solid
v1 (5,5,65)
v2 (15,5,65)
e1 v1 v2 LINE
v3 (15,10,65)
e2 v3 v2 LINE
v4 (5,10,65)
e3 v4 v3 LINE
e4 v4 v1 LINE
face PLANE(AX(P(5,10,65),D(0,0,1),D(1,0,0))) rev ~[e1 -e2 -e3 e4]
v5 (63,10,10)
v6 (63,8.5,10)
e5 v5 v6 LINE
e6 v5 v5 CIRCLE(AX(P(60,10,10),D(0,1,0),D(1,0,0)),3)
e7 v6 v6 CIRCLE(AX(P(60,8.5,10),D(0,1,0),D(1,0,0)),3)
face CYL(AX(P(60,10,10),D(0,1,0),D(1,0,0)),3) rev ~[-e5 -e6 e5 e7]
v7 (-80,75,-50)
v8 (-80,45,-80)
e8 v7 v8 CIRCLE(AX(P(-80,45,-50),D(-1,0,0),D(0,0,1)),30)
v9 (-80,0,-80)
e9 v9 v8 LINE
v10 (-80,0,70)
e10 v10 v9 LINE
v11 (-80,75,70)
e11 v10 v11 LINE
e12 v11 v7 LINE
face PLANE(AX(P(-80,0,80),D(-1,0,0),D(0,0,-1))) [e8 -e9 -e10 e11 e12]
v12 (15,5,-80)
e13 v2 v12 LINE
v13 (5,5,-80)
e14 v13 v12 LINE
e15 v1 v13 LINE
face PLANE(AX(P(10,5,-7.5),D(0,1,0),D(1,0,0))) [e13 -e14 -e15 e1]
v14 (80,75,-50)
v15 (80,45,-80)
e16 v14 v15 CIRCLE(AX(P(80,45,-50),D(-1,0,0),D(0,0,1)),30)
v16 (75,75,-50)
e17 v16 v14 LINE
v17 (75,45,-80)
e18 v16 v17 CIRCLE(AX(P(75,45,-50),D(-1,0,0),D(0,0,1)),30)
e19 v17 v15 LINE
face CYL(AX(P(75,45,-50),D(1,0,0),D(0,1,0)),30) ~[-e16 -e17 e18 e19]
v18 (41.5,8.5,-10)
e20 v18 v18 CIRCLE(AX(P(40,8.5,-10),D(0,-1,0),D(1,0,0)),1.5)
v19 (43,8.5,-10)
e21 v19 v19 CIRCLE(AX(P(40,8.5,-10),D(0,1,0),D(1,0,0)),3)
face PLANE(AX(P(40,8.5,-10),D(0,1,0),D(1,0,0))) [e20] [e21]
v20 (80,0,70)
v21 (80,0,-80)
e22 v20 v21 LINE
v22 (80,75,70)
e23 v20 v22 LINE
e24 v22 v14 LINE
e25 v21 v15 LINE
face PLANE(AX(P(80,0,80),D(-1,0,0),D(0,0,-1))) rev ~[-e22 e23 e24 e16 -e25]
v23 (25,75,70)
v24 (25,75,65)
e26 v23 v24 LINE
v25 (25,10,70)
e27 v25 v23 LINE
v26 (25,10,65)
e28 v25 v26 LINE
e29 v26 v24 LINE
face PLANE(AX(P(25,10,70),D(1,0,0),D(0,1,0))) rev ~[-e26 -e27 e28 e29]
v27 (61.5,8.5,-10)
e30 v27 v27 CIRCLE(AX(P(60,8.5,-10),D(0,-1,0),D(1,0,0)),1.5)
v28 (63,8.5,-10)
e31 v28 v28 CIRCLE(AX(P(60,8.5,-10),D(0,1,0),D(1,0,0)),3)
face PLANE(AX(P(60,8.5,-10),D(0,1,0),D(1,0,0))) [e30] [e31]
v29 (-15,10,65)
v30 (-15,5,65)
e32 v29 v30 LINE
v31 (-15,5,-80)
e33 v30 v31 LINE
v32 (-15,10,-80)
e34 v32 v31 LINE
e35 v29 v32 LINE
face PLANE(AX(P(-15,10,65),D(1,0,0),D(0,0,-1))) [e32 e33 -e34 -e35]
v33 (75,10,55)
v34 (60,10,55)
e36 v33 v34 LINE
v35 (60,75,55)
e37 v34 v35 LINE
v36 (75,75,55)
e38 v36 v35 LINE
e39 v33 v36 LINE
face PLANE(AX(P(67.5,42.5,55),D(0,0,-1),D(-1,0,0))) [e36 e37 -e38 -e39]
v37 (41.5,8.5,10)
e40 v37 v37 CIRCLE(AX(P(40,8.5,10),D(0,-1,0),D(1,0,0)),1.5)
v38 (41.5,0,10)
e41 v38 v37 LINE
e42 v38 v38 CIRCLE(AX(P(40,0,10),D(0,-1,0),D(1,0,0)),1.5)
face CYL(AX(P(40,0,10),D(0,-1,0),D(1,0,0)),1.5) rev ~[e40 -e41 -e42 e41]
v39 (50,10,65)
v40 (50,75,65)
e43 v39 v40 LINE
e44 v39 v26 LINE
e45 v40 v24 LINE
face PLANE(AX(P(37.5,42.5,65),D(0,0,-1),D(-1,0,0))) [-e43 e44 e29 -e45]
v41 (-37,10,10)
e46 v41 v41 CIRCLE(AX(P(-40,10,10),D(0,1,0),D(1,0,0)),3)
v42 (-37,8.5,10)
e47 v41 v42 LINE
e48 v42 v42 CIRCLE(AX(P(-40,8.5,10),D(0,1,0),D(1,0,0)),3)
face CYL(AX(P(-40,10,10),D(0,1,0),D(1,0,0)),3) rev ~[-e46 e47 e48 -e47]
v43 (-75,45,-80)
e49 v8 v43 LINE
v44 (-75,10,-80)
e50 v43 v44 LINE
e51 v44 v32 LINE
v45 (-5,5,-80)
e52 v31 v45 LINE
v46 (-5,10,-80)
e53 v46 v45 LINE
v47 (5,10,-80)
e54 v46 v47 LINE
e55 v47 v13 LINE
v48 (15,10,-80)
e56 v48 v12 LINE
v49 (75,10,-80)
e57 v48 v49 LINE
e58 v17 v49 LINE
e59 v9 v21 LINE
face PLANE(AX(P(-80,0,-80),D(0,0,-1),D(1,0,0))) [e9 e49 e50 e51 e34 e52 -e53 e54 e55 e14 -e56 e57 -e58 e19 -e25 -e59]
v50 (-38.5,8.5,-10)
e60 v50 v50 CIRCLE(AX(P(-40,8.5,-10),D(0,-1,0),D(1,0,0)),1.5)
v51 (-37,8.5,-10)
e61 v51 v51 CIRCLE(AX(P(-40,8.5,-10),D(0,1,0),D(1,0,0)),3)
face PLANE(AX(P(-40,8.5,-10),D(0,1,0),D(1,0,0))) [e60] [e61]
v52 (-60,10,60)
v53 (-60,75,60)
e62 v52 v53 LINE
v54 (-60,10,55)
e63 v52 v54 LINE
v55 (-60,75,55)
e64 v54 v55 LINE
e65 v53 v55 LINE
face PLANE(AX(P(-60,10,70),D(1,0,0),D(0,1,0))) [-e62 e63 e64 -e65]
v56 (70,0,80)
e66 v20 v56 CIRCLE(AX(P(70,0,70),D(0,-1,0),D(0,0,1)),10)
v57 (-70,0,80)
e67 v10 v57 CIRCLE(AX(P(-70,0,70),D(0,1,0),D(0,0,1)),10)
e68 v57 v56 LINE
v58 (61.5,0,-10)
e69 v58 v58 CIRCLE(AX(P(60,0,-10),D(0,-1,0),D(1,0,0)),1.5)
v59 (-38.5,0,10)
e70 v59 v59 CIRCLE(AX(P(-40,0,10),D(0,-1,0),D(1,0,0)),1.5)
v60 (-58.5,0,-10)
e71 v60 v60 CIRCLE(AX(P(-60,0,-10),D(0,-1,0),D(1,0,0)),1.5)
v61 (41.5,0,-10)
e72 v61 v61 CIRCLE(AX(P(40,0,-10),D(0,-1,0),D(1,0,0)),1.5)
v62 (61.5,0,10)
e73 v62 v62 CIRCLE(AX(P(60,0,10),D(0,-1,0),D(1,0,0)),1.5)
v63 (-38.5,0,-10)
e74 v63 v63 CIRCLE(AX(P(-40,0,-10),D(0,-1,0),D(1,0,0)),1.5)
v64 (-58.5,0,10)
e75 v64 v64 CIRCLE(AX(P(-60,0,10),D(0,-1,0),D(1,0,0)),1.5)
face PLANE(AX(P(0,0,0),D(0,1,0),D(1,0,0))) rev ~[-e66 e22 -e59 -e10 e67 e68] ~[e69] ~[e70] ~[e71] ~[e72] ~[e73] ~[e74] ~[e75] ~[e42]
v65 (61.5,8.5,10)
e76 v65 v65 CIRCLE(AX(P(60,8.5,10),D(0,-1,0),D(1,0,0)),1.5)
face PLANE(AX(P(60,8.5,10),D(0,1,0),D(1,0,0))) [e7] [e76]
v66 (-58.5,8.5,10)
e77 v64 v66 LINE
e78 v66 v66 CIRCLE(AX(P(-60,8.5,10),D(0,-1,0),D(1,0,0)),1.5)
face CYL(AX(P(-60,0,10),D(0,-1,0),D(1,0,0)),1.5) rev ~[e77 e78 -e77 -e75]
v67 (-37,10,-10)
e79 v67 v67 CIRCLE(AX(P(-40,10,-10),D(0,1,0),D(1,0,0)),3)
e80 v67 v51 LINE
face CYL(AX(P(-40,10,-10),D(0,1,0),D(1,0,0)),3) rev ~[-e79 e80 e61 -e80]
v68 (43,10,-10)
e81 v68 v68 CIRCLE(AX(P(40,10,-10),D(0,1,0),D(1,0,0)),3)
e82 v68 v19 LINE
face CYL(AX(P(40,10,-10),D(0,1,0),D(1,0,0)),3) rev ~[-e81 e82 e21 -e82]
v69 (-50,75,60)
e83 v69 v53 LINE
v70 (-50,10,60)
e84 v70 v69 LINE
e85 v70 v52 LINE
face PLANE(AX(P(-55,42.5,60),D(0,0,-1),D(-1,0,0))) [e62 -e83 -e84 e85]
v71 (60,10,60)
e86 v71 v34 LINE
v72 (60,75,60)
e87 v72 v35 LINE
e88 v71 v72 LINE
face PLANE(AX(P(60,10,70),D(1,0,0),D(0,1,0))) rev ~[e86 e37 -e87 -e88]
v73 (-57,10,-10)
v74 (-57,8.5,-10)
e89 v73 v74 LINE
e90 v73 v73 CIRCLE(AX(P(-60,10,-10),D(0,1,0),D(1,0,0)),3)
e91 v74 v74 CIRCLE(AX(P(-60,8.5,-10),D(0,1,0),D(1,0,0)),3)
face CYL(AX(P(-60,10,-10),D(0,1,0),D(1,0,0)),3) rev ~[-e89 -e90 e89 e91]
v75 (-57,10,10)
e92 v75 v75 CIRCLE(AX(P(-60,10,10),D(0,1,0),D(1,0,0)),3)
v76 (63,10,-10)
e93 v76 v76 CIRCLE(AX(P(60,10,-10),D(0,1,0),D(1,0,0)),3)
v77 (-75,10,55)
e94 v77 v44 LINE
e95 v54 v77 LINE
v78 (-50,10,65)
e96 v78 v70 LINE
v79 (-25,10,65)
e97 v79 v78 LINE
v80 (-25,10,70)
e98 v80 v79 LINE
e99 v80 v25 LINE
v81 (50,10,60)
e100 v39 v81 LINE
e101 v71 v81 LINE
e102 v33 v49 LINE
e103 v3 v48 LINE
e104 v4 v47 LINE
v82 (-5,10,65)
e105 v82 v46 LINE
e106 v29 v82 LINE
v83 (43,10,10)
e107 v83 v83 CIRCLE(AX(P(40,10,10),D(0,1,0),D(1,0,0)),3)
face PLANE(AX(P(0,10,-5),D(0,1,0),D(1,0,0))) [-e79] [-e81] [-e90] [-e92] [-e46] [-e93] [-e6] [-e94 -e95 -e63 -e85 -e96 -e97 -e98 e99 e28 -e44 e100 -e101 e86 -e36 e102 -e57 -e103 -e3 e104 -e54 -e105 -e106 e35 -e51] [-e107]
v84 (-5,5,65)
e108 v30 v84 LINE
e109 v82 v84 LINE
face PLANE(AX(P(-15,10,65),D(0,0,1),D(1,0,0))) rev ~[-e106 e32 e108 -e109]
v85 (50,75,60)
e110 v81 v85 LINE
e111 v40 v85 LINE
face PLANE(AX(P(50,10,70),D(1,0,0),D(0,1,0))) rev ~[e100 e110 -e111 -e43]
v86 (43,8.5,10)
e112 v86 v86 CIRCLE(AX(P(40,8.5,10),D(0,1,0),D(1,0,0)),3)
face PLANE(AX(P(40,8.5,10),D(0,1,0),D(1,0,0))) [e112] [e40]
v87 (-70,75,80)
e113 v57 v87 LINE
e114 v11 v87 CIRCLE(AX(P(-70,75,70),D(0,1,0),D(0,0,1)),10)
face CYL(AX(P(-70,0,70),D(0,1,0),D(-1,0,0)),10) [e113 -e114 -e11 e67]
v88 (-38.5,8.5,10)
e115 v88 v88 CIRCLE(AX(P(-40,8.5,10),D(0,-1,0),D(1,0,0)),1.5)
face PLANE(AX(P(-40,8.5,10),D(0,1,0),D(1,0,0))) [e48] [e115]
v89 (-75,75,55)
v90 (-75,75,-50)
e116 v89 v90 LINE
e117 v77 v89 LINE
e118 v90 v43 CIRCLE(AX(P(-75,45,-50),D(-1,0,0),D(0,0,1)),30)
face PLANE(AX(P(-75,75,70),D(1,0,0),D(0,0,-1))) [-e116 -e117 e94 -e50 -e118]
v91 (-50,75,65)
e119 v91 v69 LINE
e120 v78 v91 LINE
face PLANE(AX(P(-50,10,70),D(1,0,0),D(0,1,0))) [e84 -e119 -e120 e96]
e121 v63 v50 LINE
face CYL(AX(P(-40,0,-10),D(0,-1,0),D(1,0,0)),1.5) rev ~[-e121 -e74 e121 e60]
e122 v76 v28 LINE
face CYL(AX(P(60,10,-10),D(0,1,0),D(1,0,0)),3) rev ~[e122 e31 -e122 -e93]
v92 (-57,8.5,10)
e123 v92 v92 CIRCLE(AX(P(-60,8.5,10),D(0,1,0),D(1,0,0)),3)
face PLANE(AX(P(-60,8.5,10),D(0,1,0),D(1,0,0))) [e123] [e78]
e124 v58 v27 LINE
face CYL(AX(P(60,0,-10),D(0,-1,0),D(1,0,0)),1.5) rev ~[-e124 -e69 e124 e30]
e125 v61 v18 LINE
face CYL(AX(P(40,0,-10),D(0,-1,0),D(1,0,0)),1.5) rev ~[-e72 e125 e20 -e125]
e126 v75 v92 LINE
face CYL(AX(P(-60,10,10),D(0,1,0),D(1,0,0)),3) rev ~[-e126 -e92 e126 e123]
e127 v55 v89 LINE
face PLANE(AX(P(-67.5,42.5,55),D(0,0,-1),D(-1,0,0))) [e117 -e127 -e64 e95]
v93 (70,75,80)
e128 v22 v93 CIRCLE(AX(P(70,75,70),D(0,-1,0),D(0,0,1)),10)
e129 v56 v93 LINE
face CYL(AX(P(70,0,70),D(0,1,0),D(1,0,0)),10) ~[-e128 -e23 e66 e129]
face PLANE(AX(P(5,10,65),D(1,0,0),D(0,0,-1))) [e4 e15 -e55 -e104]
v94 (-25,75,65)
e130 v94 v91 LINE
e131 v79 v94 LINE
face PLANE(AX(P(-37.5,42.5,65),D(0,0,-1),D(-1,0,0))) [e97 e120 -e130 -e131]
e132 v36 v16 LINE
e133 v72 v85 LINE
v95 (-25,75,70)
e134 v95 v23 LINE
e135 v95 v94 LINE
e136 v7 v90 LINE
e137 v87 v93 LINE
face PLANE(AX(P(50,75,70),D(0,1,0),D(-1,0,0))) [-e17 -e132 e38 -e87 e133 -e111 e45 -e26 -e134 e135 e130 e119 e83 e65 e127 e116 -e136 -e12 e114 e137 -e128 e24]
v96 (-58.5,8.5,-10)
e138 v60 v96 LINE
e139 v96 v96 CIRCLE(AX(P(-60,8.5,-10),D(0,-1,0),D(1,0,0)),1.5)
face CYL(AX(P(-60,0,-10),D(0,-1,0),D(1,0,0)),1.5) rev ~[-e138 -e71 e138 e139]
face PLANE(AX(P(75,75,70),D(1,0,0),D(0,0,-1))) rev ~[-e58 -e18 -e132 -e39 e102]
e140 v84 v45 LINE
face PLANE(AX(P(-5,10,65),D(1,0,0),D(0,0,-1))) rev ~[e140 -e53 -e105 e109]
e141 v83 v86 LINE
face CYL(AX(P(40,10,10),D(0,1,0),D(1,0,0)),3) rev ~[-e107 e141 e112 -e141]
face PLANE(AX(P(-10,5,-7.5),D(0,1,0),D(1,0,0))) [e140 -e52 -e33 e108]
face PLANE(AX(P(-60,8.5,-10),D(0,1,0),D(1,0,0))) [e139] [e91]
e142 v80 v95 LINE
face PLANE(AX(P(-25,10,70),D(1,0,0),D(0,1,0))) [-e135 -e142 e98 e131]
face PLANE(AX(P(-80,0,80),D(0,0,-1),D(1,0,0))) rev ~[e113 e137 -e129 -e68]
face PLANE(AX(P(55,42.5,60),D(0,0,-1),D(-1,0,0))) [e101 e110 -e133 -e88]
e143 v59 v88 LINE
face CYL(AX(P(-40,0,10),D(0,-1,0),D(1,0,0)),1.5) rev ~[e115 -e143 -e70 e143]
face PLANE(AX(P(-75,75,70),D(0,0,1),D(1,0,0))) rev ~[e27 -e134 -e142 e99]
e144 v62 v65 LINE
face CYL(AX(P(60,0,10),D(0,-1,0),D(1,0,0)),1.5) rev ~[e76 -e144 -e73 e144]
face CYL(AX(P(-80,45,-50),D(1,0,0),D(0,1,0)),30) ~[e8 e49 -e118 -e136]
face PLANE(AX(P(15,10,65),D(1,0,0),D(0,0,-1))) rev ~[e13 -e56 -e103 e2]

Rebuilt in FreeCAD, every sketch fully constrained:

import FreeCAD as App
import Part
import Sketcher


def edges_at(feature, points):
    """Names of the edges that pass closest to the given points."""
    edges = feature.Shape.Edges
    near = lambda p: min(range(len(edges)), key=lambda i: edges[i].distToShape(Part.Vertex(*p))[0])
    return sorted({f"Edge{near(p) + 1}" for p in points})


def add_polygon(sketch, points):
    """Adds a closed chain of lines whose ends are joined by coincident constraints."""
    first, n = sketch.GeometryCount, len(points)
    for a, b in zip(points, points[1:] + points[:1]):
        sketch.addGeometry(Part.LineSegment(App.Vector(*a, 0), App.Vector(*b, 0)), False)
    for i in range(n):
        sketch.addConstraint(Sketcher.Constraint("Coincident", first + i, 2, first + (i + 1) % n, 1))

doc = App.newDocument("Part")
body = doc.addObject("PartDesign::Body", "Body")

sketch1 = body.newObject("Sketcher::SketchObject", "Sketch")
sketch1.AttachmentSupport = (doc.getObject("XZ_Plane"), [""])
sketch1.MapMode = "FlatFace"
add_polygon(sketch1, [(-80, -80), (-80, 80), (80, 80), (80, -80)])
sketch1.addConstraint([
    Sketcher.Constraint("Vertical", 0),
    Sketcher.Constraint("Horizontal", 1),
    Sketcher.Constraint("Vertical", 2),
    Sketcher.Constraint("Horizontal", 3),
    Sketcher.Constraint("Symmetric", 0, 2, 2, 2, -1, 1),
    Sketcher.Constraint("Equal", 3, 0),
    Sketcher.Constraint("DistanceX", 1, 1, 1, 2, 160.0),
])
pad1 = body.newObject("PartDesign::Pad", "Pad")
pad1.Profile = sketch1
pad1.Length = 75
pad1.Reversed = True

sketch2 = body.newObject("Sketcher::SketchObject", "Sketch001")
sketch2.AttachmentSupport = (doc.getObject("XZ_Plane"), [""])
sketch2.MapMode = "FlatFace"
sketch2.AttachmentOffset = App.Placement(App.Vector(0, 0, -75), App.Rotation())
add_polygon(sketch2, [(-75, -80), (-75, 70), (75, 70), (75, -80)])
sketch2.addConstraint([
    Sketcher.Constraint("Vertical", 0),
    Sketcher.Constraint("Horizontal", 1),
    Sketcher.Constraint("Vertical", 2),
    Sketcher.Constraint("Horizontal", 3),
    Sketcher.Constraint("Equal", 3, 0),
    Sketcher.Constraint("DistanceX", 1, 1, 1, 2, 150.0),
    Sketcher.Constraint("DistanceX", 0, 2, -1, 1, 75.0),
    Sketcher.Constraint("DistanceY", -1, 1, 0, 2, 70.0),
])
pocket1 = body.newObject("PartDesign::Pocket", "Pocket")
pocket1.Profile = sketch2
pocket1.Length = 65
pocket1.Reversed = True

sketch3 = body.newObject("Sketcher::SketchObject", "Sketch002")
sketch3.AttachmentSupport = (doc.getObject("XY_Plane"), [""])
sketch3.MapMode = "FlatFace"
sketch3.AttachmentOffset = App.Placement(App.Vector(0, 0, 70), App.Rotation())
add_polygon(sketch3, [(75, 75), (75, 10), (60, 10), (60, 75)])
add_polygon(sketch3, [(-60, 75), (-60, 10), (-75, 10), (-75, 75)])
sketch3.addConstraint([
    Sketcher.Constraint("Vertical", 0),
    Sketcher.Constraint("Horizontal", 1),
    Sketcher.Constraint("Vertical", 2),
    Sketcher.Constraint("Horizontal", 3),
    Sketcher.Constraint("Vertical", 4),
    Sketcher.Constraint("Horizontal", 5),
    Sketcher.Constraint("Vertical", 6),
    Sketcher.Constraint("Horizontal", 7),
    Sketcher.Constraint("Symmetric", 1, 2, 4, 2, -2),
    Sketcher.Constraint("Symmetric", 3, 2, 6, 2, -2),
    Sketcher.Constraint("DistanceX", 1, 2, 1, 1, 15.0),
    Sketcher.Constraint("DistanceY", 0, 2, 0, 1, 65.0),
    Sketcher.Constraint("DistanceX", -1, 1, 0, 2, 75.0),
    Sketcher.Constraint("DistanceY", -1, 1, 0, 2, 10.0),
])
pad2 = body.newObject("PartDesign::Pad", "Pad001")
pad2.Profile = sketch3
pad2.Length = 15
pad2.Reversed = True

sketch4 = body.newObject("Sketcher::SketchObject", "Sketch003")
sketch4.AttachmentSupport = (doc.getObject("XY_Plane"), [""])
sketch4.MapMode = "FlatFace"
sketch4.AttachmentOffset = App.Placement(App.Vector(0, 0, 70), App.Rotation())
add_polygon(sketch4, [(60, 75), (60, 10), (50, 10), (50, 75)])
add_polygon(sketch4, [(-50, 75), (-50, 10), (-60, 10), (-60, 75)])
sketch4.addConstraint([
    Sketcher.Constraint("Vertical", 0),
    Sketcher.Constraint("Horizontal", 1),
    Sketcher.Constraint("Vertical", 2),
    Sketcher.Constraint("Horizontal", 3),
    Sketcher.Constraint("Vertical", 4),
    Sketcher.Constraint("Horizontal", 5),
    Sketcher.Constraint("Vertical", 6),
    Sketcher.Constraint("Horizontal", 7),
    Sketcher.Constraint("Symmetric", 1, 2, 4, 2, -2),
    Sketcher.Constraint("Symmetric", 3, 2, 6, 2, -2),
    Sketcher.Constraint("DistanceX", 1, 2, 1, 1, 10.0),
    Sketcher.Constraint("DistanceY", 0, 2, 0, 1, 65.0),
    Sketcher.Constraint("DistanceX", -1, 1, 0, 2, 60.0),
    Sketcher.Constraint("DistanceY", -1, 1, 0, 2, 10.0),
])
pad3 = body.newObject("PartDesign::Pad", "Pad002")
pad3.Profile = sketch4
pad3.Length = 10
pad3.Reversed = True
doc.recompute()

fillet = body.newObject("PartDesign::Fillet", "Fillet")
fillet.Base = (pad3, edges_at(pad3, [(80, 37.5, 80), (-80, 37.5, 80)]))
fillet.Radius = 10

sketch5 = body.newObject("Sketcher::SketchObject", "Sketch004")
sketch5.AttachmentSupport = (doc.getObject("XY_Plane"), [""])
sketch5.MapMode = "FlatFace"
sketch5.AttachmentOffset = App.Placement(App.Vector(0, 0, 70), App.Rotation())
add_polygon(sketch5, [(50, 75), (50, 10), (25, 10), (25, 75)])
add_polygon(sketch5, [(-25, 75), (-25, 10), (-50, 10), (-50, 75)])
sketch5.addConstraint([
    Sketcher.Constraint("Vertical", 0),
    Sketcher.Constraint("Horizontal", 1),
    Sketcher.Constraint("Vertical", 2),
    Sketcher.Constraint("Horizontal", 3),
    Sketcher.Constraint("Vertical", 4),
    Sketcher.Constraint("Horizontal", 5),
    Sketcher.Constraint("Vertical", 6),
    Sketcher.Constraint("Horizontal", 7),
    Sketcher.Constraint("Symmetric", 1, 2, 4, 2, -2),
    Sketcher.Constraint("Symmetric", 3, 2, 6, 2, -2),
    Sketcher.Constraint("DistanceX", 1, 2, 1, 1, 25.0),
    Sketcher.Constraint("DistanceY", 0, 2, 0, 1, 65.0),
    Sketcher.Constraint("DistanceX", -1, 1, 0, 2, 50.0),
    Sketcher.Constraint("DistanceY", -1, 1, 0, 2, 10.0),
])
pad4 = body.newObject("PartDesign::Pad", "Pad003")
pad4.Profile = sketch5
pad4.Length = 5
pad4.Reversed = True
doc.recompute()

fillet2 = body.newObject("PartDesign::Fillet", "Fillet001")
fillet2.Base = (pad4, edges_at(pad4, [(-77.5, 75, -80), (77.5, 75, -80)]))
fillet2.Radius = 30

sketch6 = body.newObject("Sketcher::SketchObject", "Sketch005")
sketch6.AttachmentSupport = (doc.getObject("XZ_Plane"), [""])
sketch6.MapMode = "FlatFace"
sketch6.addGeometry([
    Part.Circle(App.Vector(-60, 10, 0), App.Vector(0, 0, 1), 1.5),
    Part.Circle(App.Vector(-40, 10, 0), App.Vector(0, 0, 1), 1.5),
    Part.Circle(App.Vector(40, 10, 0), App.Vector(0, 0, 1), 1.5),
    Part.Circle(App.Vector(60, 10, 0), App.Vector(0, 0, 1), 1.5),
    Part.Circle(App.Vector(60, -10, 0), App.Vector(0, 0, 1), 1.5),
    Part.Circle(App.Vector(40, -10, 0), App.Vector(0, 0, 1), 1.5),
    Part.Circle(App.Vector(-40, -10, 0), App.Vector(0, 0, 1), 1.5),
    Part.Circle(App.Vector(-60, -10, 0), App.Vector(0, 0, 1), 1.5),
], False)
sketch6.addConstraint([
    Sketcher.Constraint("Equal", 0, 1),
    Sketcher.Constraint("Equal", 1, 2),
    Sketcher.Constraint("Equal", 2, 3),
    Sketcher.Constraint("Equal", 3, 4),
    Sketcher.Constraint("Equal", 4, 5),
    Sketcher.Constraint("Equal", 5, 6),
    Sketcher.Constraint("Equal", 6, 7),
    Sketcher.Constraint("Symmetric", 0, 3, 4, 3, -1, 1),
    Sketcher.Constraint("Symmetric", 1, 3, 5, 3, -1, 1),
    Sketcher.Constraint("Symmetric", 2, 3, 6, 3, -1, 1),
    Sketcher.Constraint("Symmetric", 3, 3, 7, 3, -1, 1),
    Sketcher.Constraint("Symmetric", 1, 3, 2, 3, -2),
    Sketcher.Constraint("Symmetric", 0, 3, 3, 3, -2),
    Sketcher.Constraint("Horizontal", 0, 3, 1, 3),
    Sketcher.Constraint("Diameter", 0, 3.0),
    Sketcher.Constraint("DistanceX", 0, 3, -1, 1, 60.0),
    Sketcher.Constraint("DistanceY", -1, 1, 0, 3, 10.0),
    Sketcher.Constraint("DistanceX", 1, 3, -1, 1, 40.0),
])
pocket2 = body.newObject("PartDesign::Pocket", "Pocket001")
pocket2.Profile = sketch6
pocket2.Length = 10

sketch7 = body.newObject("Sketcher::SketchObject", "Sketch006")
sketch7.AttachmentSupport = (doc.getObject("XZ_Plane"), [""])
sketch7.MapMode = "FlatFace"
sketch7.AttachmentOffset = App.Placement(App.Vector(0, 0, -10), App.Rotation())
sketch7.addGeometry([
    Part.Circle(App.Vector(-60, -10, 0), App.Vector(0, 0, 1), 3),
    Part.Circle(App.Vector(-40, -10, 0), App.Vector(0, 0, 1), 3),
    Part.Circle(App.Vector(-40, 10, 0), App.Vector(0, 0, 1), 3),
    Part.Circle(App.Vector(-60, 10, 0), App.Vector(0, 0, 1), 3),
    Part.Circle(App.Vector(40, 10, 0), App.Vector(0, 0, 1), 3),
    Part.Circle(App.Vector(60, 10, 0), App.Vector(0, 0, 1), 3),
    Part.Circle(App.Vector(40, -10, 0), App.Vector(0, 0, 1), 3),
    Part.Circle(App.Vector(60, -10, 0), App.Vector(0, 0, 1), 3),
], False)
sketch7.addConstraint([
    Sketcher.Constraint("Equal", 0, 1),
    Sketcher.Constraint("Equal", 1, 2),
    Sketcher.Constraint("Equal", 2, 3),
    Sketcher.Constraint("Equal", 3, 4),
    Sketcher.Constraint("Equal", 4, 5),
    Sketcher.Constraint("Equal", 5, 6),
    Sketcher.Constraint("Equal", 6, 7),
    Sketcher.Constraint("Symmetric", 1, 3, 4, 3, -1, 1),
    Sketcher.Constraint("Symmetric", 0, 3, 5, 3, -1, 1),
    Sketcher.Constraint("Symmetric", 2, 3, 6, 3, -1, 1),
    Sketcher.Constraint("Symmetric", 3, 3, 7, 3, -1, 1),
    Sketcher.Constraint("Symmetric", 2, 3, 4, 3, -2),
    Sketcher.Constraint("Symmetric", 3, 3, 5, 3, -2),
    Sketcher.Constraint("Horizontal", 0, 3, 1, 3),
    Sketcher.Constraint("Diameter", 0, 6.0),
    Sketcher.Constraint("DistanceX", 0, 3, -1, 1, 60.0),
    Sketcher.Constraint("DistanceY", 0, 3, -1, 1, 10.0),
    Sketcher.Constraint("DistanceX", 1, 3, -1, 1, 40.0),
])
pocket3 = body.newObject("PartDesign::Pocket", "Pocket002")
pocket3.Profile = sketch7
pocket3.Length = 1.5
pocket3.Reversed = True

sketch8 = body.newObject("Sketcher::SketchObject", "Sketch007")
sketch8.AttachmentSupport = (doc.getObject("XZ_Plane"), [""])
sketch8.MapMode = "FlatFace"
sketch8.AttachmentOffset = App.Placement(App.Vector(0, 0, -10), App.Rotation())
add_polygon(sketch8, [(5, -80), (5, 65), (15, 65), (15, -80)])
add_polygon(sketch8, [(-15, -80), (-15, 65), (-5, 65), (-5, -80)])
sketch8.addConstraint([
    Sketcher.Constraint("Vertical", 0),
    Sketcher.Constraint("Horizontal", 1),
    Sketcher.Constraint("Vertical", 2),
    Sketcher.Constraint("Horizontal", 3),
    Sketcher.Constraint("Vertical", 4),
    Sketcher.Constraint("Horizontal", 5),
    Sketcher.Constraint("Vertical", 6),
    Sketcher.Constraint("Horizontal", 7),
    Sketcher.Constraint("Symmetric", 1, 2, 4, 2, -2),
    Sketcher.Constraint("Symmetric", 3, 2, 6, 2, -2),
    Sketcher.Constraint("DistanceX", 1, 1, 1, 2, 10.0),
    Sketcher.Constraint("DistanceY", 0, 1, 0, 2, 145.0),
    Sketcher.Constraint("DistanceX", -1, 1, 0, 2, 5.0),
    Sketcher.Constraint("DistanceY", -1, 1, 0, 2, 65.0),
])
pocket4 = body.newObject("PartDesign::Pocket", "Pocket003")
pocket4.Profile = sketch8
pocket4.Length = 5
pocket4.Reversed = True

doc.recompute()
